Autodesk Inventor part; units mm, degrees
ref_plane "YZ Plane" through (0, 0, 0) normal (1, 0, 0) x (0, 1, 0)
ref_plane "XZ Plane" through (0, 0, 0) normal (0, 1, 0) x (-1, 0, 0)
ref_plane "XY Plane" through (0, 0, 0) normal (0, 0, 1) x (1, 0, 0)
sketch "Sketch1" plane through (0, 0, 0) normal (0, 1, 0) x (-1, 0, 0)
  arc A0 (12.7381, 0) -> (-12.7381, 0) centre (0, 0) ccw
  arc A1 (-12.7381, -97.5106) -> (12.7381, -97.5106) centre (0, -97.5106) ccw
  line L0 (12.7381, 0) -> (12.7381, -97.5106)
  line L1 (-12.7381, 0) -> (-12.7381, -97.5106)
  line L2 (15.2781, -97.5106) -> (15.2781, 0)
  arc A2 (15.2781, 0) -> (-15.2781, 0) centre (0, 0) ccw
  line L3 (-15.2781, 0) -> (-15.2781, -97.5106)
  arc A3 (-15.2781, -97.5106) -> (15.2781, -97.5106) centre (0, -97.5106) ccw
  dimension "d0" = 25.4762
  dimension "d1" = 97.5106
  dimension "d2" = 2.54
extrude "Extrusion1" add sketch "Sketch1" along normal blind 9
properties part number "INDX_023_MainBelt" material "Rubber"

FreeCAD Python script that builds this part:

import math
import FreeCAD as App
import Part
import Sketcher

V = App.Vector
Q = App.Units.Quantity

doc = App.newDocument("Part")
body = doc.addObject("PartDesign::Body", "Body")

sketch1 = body.newObject("Sketcher::SketchObject", "Sketch")
sketch1.AttachmentSupport = (doc.getObject("XZ_Plane"), [""])
sketch1.MapMode = "FlatFace"
sketch1.addGeometry(Part.ArcOfCircle(Part.Circle(V(0, -97.5106, 0), V(0, 0, 1), 15.2781), math.radians(180), math.radians(360)), False)
sketch1.addGeometry(Part.LineSegment(V(-15.2781, -97.5106, 0), V(-15.2781, 0, 0)), False)
sketch1.addGeometry(Part.ArcOfCircle(Part.Circle(V(0, 0, 0), V(0, 0, 1), 15.2781), math.radians(0), math.radians(180)), False)
sketch1.addGeometry(Part.LineSegment(V(15.2781, 0, 0), V(15.2781, -97.5106, 0)), False)
sketch1.addGeometry(Part.ArcOfCircle(Part.Circle(V(0, 0, 0), V(0, 0, 1), 12.7381), math.radians(0), math.radians(180)), False)
sketch1.addGeometry(Part.LineSegment(V(-12.7381, 0, 0), V(-12.7381, -97.5106, 0)), False)
sketch1.addGeometry(Part.ArcOfCircle(Part.Circle(V(0, -97.5106, 0), V(0, 0, 1), 12.7381), math.radians(180), math.radians(360)), False)
sketch1.addGeometry(Part.LineSegment(V(12.7381, -97.5106, 0), V(12.7381, 0, 0)), False)
sketch1.addConstraint(Sketcher.Constraint("Tangent", 0, 1, 1, 1))
sketch1.addConstraint(Sketcher.Constraint("Tangent", 1, 2, 2, 2))
sketch1.addConstraint(Sketcher.Constraint("Tangent", 2, 1, 3, 1))
sketch1.addConstraint(Sketcher.Constraint("Tangent", 3, 2, 0, 2))
sketch1.addConstraint(Sketcher.Constraint("Tangent", 4, 2, 5, 1))
sketch1.addConstraint(Sketcher.Constraint("Tangent", 5, 2, 6, 1))
sketch1.addConstraint(Sketcher.Constraint("Tangent", 6, 2, 7, 1))
sketch1.addConstraint(Sketcher.Constraint("Tangent", 7, 2, 4, 1))
sketch1.addConstraint(Sketcher.Constraint("Vertical", 1))
sketch1.addConstraint(Sketcher.Constraint("Vertical", 3))
sketch1.addConstraint(Sketcher.Constraint("Vertical", 5))
sketch1.addConstraint(Sketcher.Constraint("Vertical", 7))
sketch1.addConstraint(Sketcher.Constraint("Coincident", 2, 3, -1, 1))
sketch1.addConstraint(Sketcher.Constraint("Coincident", 4, 3, -1, 1))
sketch1.addConstraint(Sketcher.Constraint("Horizontal", 6, 3, 0, 1))
sketch1.addConstraint(Sketcher.Constraint("Radius", 4, Q("0.5015 in")))
sketch1.addConstraint(Sketcher.Constraint("DistanceX", 1, 2, 4, 2, Q("0.1 in")))
sketch1.addConstraint(Sketcher.Constraint("DistanceY", 1, 1, 1, 2, Q("3.839 in")))
pad1 = body.newObject("PartDesign::Pad", "Pad")
pad1.Profile = sketch1
pad1.Length = 9
pad1.Reversed = True

doc.recompute()
